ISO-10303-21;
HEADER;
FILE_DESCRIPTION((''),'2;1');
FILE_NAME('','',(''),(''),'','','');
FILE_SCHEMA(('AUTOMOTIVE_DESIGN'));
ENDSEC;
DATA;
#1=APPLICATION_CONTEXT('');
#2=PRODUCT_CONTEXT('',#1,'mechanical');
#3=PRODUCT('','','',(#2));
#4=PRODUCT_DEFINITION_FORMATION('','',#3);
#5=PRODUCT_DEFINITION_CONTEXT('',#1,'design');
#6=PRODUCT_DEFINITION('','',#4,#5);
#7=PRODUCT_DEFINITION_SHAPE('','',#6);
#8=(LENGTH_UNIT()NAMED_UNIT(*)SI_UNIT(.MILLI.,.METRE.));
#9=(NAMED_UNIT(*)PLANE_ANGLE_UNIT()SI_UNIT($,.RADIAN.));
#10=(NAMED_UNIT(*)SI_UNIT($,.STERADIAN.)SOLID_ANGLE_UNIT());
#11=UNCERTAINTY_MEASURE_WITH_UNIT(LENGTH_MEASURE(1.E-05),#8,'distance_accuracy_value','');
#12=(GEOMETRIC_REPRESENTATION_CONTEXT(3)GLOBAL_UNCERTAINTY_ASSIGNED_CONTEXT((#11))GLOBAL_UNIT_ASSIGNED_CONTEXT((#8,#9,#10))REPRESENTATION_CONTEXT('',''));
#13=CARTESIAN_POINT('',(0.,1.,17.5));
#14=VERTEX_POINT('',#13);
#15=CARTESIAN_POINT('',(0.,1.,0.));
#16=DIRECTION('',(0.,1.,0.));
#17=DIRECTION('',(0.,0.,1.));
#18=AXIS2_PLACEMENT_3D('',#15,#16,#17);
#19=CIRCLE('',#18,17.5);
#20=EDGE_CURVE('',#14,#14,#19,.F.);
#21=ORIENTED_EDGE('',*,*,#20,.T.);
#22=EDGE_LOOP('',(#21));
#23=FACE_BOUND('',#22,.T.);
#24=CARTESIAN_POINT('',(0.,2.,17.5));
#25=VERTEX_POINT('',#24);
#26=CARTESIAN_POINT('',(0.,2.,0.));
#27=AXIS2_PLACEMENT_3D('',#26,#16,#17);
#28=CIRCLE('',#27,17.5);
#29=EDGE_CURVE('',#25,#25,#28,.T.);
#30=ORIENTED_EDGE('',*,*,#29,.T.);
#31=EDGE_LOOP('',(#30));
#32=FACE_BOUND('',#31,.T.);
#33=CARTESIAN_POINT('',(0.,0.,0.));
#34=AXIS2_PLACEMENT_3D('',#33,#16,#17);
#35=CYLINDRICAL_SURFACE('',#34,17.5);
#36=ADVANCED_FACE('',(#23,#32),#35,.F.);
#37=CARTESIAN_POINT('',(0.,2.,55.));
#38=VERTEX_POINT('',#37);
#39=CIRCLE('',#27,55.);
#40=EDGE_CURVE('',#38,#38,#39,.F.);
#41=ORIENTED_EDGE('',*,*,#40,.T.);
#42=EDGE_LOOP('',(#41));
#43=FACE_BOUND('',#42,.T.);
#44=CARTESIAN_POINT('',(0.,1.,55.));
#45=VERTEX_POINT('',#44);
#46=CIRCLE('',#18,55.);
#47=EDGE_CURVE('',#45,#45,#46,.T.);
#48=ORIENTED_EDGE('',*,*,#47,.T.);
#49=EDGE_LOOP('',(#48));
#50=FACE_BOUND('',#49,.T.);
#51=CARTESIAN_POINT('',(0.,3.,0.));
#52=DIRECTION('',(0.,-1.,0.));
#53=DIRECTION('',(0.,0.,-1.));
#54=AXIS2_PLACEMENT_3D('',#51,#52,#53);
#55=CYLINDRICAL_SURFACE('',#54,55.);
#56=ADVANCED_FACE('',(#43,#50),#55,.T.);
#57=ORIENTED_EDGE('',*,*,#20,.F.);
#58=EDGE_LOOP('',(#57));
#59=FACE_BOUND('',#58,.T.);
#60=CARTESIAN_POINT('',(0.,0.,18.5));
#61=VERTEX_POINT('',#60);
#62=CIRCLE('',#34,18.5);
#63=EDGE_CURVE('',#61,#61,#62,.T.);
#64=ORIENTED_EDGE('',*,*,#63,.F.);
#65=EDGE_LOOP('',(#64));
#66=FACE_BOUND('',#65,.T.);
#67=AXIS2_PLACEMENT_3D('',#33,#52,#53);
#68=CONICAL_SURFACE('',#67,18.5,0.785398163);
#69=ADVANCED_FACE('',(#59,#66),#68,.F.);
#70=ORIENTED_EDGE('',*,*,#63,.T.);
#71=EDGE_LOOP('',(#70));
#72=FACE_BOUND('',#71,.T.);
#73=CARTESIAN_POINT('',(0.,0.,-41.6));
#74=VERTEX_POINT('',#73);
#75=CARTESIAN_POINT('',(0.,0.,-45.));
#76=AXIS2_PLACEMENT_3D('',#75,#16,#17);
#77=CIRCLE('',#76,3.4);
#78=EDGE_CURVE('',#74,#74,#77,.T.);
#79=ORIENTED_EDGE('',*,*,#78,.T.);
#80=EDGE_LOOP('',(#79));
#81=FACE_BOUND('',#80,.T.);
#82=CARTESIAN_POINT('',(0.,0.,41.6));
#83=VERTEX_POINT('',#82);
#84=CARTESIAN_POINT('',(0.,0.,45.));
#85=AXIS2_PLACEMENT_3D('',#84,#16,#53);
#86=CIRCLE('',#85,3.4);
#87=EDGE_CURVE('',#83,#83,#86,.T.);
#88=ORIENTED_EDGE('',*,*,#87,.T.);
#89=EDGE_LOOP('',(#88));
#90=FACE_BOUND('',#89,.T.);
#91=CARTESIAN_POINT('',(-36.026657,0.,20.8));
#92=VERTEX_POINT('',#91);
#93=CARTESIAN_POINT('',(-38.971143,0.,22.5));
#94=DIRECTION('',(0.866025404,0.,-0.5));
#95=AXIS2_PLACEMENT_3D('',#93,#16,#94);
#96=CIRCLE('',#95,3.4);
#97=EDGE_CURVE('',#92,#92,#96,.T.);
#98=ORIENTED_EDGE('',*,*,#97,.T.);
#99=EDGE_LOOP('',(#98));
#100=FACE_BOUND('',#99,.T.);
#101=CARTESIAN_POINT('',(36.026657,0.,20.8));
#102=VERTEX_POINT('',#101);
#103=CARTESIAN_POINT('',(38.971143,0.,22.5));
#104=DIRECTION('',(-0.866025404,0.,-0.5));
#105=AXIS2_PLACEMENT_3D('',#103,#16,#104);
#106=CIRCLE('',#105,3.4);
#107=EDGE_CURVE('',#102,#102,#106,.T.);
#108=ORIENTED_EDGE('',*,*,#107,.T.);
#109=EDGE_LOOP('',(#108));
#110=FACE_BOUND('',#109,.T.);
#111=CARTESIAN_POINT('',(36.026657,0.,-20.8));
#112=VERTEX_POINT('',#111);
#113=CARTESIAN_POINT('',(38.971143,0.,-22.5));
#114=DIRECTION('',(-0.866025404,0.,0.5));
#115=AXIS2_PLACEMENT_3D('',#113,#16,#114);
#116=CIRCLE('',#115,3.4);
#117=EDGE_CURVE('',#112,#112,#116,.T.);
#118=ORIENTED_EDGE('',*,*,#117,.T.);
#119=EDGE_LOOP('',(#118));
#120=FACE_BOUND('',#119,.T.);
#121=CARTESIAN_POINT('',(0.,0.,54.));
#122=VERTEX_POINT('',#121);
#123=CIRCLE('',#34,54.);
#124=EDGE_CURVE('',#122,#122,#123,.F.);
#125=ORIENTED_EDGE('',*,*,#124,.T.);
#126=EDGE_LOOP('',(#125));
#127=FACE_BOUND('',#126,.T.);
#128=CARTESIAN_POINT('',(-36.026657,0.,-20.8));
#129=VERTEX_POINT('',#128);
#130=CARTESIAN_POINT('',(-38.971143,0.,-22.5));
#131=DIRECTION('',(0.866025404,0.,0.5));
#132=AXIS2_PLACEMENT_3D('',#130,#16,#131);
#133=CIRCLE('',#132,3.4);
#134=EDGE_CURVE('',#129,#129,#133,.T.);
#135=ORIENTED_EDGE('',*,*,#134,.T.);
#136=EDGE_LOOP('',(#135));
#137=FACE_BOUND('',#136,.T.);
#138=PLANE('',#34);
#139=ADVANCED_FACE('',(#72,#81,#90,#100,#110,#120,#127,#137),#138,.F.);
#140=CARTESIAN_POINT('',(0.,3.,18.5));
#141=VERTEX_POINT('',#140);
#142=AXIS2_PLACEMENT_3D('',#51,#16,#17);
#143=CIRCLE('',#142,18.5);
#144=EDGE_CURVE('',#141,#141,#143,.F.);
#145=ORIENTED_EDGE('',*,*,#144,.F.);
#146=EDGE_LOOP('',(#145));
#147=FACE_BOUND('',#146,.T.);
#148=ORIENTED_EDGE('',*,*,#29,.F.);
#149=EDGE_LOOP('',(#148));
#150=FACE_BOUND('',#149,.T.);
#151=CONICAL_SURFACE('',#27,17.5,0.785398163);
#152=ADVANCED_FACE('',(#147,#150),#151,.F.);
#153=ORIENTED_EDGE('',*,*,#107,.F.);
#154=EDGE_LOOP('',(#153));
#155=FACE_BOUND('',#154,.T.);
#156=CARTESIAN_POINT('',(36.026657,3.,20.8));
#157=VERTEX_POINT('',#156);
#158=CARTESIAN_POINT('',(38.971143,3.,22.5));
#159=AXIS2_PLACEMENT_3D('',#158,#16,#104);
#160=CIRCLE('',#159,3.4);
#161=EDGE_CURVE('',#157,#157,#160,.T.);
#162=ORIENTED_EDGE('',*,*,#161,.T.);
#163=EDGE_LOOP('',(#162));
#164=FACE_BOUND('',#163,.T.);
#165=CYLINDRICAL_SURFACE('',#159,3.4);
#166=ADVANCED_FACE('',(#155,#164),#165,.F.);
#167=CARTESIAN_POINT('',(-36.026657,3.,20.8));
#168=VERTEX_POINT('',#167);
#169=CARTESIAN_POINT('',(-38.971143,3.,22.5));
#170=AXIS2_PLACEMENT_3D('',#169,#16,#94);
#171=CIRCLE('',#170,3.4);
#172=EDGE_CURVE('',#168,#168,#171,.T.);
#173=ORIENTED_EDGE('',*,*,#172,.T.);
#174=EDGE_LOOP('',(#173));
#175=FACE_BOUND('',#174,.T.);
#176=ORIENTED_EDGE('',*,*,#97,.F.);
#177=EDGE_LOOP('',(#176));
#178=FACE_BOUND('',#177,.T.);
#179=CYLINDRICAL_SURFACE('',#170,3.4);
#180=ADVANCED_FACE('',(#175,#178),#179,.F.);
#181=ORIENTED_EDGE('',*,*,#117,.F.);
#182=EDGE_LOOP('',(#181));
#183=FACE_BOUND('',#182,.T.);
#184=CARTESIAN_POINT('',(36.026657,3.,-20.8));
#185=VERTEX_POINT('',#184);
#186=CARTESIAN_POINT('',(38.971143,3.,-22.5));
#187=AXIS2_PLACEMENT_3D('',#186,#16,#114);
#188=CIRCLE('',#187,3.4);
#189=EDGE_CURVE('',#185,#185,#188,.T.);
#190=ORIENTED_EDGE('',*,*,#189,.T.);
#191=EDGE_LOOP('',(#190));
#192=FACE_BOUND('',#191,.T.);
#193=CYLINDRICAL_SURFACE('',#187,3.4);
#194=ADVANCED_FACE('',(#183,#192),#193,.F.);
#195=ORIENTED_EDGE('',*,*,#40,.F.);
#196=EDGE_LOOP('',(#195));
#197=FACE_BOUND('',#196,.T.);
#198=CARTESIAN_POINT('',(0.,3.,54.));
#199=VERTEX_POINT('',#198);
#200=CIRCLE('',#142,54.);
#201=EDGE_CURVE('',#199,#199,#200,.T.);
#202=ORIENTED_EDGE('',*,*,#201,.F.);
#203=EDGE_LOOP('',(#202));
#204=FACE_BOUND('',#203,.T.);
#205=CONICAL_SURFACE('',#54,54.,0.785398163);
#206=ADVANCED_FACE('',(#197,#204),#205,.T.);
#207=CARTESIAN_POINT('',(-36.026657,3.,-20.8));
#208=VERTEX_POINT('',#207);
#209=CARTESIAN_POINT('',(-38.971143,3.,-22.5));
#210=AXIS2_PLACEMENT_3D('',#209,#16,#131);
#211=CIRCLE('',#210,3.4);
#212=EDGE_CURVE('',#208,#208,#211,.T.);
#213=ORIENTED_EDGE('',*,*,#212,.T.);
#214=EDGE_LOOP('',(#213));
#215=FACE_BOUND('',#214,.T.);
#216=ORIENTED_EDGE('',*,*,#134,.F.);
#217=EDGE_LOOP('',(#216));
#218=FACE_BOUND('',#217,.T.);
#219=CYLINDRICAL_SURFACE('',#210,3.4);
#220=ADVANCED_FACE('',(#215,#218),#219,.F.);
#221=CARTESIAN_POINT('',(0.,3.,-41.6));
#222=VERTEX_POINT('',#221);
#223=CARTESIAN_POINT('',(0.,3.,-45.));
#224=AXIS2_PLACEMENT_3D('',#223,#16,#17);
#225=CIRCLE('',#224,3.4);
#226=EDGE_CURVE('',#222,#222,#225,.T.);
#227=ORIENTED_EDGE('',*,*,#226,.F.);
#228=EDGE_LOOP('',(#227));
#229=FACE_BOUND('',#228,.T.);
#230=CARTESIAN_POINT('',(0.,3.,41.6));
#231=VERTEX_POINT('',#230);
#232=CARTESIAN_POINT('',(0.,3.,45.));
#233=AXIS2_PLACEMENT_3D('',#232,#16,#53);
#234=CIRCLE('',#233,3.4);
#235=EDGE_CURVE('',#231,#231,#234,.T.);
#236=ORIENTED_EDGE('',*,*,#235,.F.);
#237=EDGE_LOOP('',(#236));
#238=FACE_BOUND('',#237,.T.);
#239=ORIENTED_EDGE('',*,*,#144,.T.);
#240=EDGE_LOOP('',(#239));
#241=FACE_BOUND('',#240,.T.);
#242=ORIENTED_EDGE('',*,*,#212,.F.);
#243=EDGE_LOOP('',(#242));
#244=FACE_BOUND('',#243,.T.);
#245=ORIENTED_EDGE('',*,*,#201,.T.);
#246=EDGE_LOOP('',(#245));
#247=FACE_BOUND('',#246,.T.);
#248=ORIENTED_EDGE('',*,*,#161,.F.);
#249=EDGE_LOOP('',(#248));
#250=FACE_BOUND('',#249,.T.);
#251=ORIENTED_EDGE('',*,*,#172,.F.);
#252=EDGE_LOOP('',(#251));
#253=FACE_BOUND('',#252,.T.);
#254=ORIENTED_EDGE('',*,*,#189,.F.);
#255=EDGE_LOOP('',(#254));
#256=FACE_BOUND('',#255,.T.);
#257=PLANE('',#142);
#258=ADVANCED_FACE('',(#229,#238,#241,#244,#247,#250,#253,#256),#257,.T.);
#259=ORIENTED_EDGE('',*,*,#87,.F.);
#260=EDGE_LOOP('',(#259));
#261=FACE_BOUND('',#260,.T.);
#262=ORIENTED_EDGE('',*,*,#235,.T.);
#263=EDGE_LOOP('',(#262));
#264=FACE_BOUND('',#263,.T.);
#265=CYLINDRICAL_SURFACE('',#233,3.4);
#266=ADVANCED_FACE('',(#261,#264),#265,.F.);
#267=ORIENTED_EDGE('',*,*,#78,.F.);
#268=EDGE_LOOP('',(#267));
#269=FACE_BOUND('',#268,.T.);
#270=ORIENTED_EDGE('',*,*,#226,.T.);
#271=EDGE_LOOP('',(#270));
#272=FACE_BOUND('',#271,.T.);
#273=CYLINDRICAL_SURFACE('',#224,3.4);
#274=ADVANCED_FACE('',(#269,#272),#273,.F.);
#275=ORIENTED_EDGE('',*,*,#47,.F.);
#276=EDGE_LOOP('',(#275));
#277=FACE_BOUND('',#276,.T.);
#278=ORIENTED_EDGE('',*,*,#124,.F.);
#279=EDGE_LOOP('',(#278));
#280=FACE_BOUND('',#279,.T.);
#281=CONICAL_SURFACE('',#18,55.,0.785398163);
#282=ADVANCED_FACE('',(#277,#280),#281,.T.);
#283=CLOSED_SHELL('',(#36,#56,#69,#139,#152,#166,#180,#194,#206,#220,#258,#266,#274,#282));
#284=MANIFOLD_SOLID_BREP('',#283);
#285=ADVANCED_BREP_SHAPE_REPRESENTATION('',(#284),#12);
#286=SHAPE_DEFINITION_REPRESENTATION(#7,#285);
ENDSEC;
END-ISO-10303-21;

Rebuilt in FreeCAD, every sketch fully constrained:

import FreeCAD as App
import Part
import Sketcher
from FreeCAD import Vector
Q = App.Units.Quantity


def edges_at(feature, points):
    """Names of the edges that pass closest to the given points."""
    edges = feature.Shape.Edges
    near = lambda p: min(range(len(edges)), key=lambda i: edges[i].distToShape(Part.Vertex(*p))[0])
    return sorted({f"Edge{near(p) + 1}" for p in points})

doc = App.newDocument("Part")
body = doc.addObject("PartDesign::Body", "Body")

# Sketch on XZ plane
sketch1 = doc.addObject("Sketcher::SketchObject", "Sketch")
body.addObject(sketch1)
sketch1.AttachmentSupport = (doc.XZ_Plane, [""])
sketch1.MapMode = "FlatFace"
sketch1.addGeometry(Part.Circle(Vector(0, 0, 0), Vector(0, 0, 1), 55), False)
sketch1.addConstraint([
    Sketcher.Constraint("Coincident", 0, 3, -1, 1),
    Sketcher.Constraint("Diameter", 0, 110.0),
])
pad1 = doc.addObject("PartDesign::Pad", "Pad")
body.addObject(pad1)
pad1.Profile = sketch1
pad1.Length = 3
pad1.Reversed = True

# Sketch on YZ plane
sketch2 = doc.addObject("Sketcher::SketchObject", "Sketch001")
body.addObject(sketch2)
sketch2.AttachmentSupport = (doc.YZ_Plane, [""])
sketch2.MapMode = "FlatFace"
sketch2.addGeometry([
    Part.LineSegment(Vector(-15, -45, 0), Vector(3, -45, 0)),
    Part.LineSegment(Vector(3, -45, 0), Vector(3, -41.6, 0)),
    Part.LineSegment(Vector(3, -41.6, 0), Vector(-13, -41.6, 0)),
    Part.LineSegment(Vector(-13, -41.6, 0), Vector(-15, -45, 0)),
], False)
sketch2.addGeometry(Part.LineSegment(Vector(3, -45, 0), Vector(-15, -45, 0)), True)  # axis
sketch2.addConstraint([
    Sketcher.Constraint("Coincident", 0, 2, 1, 1),
    Sketcher.Constraint("Coincident", 1, 2, 2, 1),
    Sketcher.Constraint("Coincident", 2, 2, 3, 1),
    Sketcher.Constraint("Coincident", 3, 2, 0, 1),
    Sketcher.Constraint("Horizontal", 0),
    Sketcher.Constraint("Vertical", 1),
    Sketcher.Constraint("Horizontal", 2),
    Sketcher.Constraint("Horizontal", 4),
    Sketcher.Constraint("Coincident", 4, 1, 0, 2),
    Sketcher.Constraint("Equal", 0, 4),
    Sketcher.Constraint("DistanceX", 2, 2, 2, 1, 16.0),
    Sketcher.Constraint("Angle", 3, Q("-121 deg")),
    Sketcher.Constraint("DistanceY", 1, 1, 1, 2, 3.4),
    Sketcher.Constraint("DistanceX", -1, 1, 0, 2, 3.0),
    Sketcher.Constraint("DistanceY", 0, 2, -1, 1, 45.0),
])
groove = doc.addObject("PartDesign::Groove", "Groove")
body.addObject(groove)
groove.Profile = sketch2
groove.ReferenceAxis = (sketch2, ["Axis0"])
groove.Angle = 360
doc.recompute()

polarpattern = doc.addObject("PartDesign::PolarPattern", "PolarPattern")
body.addObject(polarpattern)
polarpattern.Originals = [groove]
polarpattern.Axis = (doc.Y_Axis, [""])
polarpattern.Angle = 360
polarpattern.Occurrences = 6
body.Tip = polarpattern

# Sketch on XZ plane
sketch3 = doc.addObject("Sketcher::SketchObject", "Sketch002")
body.addObject(sketch3)
sketch3.AttachmentSupport = (doc.XZ_Plane, [""])
sketch3.MapMode = "FlatFace"
sketch3.AttachmentOffset = App.Placement(Vector(0, 0, -3), App.Rotation())
sketch3.addGeometry(Part.Circle(Vector(0, 0, 0), Vector(0, 0, 1), 18), False)
sketch3.addConstraint([
    Sketcher.Constraint("Coincident", 0, 3, -1, 1),
    Sketcher.Constraint("Diameter", 0, 35.0),
])
pocket1 = doc.addObject("PartDesign::Pocket", "Pocket")
body.addObject(pocket1)
pocket1.Profile = sketch3
pocket1.Length = 3
pocket1.Reversed = True
doc.recompute()

chamfer = doc.addObject("PartDesign::Chamfer", "Chamfer")
body.addObject(chamfer)
chamfer.Base = (pocket1, edges_at(pocket1, [(0, 0, -55), (0, 3, -55)]))
chamfer.Size = 1
doc.recompute()

chamfer2 = doc.addObject("PartDesign::Chamfer", "Chamfer001")
body.addObject(chamfer2)
chamfer2.Base = (chamfer, edges_at(chamfer, [(0, 0, -17.5), (0, 3, -17.5)]))
chamfer2.Size = 1

doc.recompute()
